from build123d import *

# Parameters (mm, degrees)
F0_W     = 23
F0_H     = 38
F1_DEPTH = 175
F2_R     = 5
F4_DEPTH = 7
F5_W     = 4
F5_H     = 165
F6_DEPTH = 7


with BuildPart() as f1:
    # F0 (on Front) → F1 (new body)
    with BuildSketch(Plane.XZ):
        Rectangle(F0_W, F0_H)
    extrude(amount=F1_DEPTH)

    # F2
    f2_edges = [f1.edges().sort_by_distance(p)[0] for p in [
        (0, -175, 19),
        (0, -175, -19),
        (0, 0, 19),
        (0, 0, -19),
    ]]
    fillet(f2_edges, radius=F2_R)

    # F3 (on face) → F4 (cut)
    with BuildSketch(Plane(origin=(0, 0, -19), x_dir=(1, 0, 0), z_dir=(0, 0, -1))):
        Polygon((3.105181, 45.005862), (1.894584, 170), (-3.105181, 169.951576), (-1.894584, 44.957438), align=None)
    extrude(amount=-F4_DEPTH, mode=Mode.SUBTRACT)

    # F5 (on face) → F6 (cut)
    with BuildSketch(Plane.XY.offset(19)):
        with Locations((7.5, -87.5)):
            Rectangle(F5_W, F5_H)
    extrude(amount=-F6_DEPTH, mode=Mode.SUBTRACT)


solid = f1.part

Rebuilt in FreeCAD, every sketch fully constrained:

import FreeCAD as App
import Part
import Sketcher
Q = App.Units.Quantity


def edges_at(feature, points):
    """Names of the edges that pass closest to the given points."""
    edges = feature.Shape.Edges
    near = lambda p: min(range(len(edges)), key=lambda i: edges[i].distToShape(Part.Vertex(*p))[0])
    return sorted({f"Edge{near(p) + 1}" for p in points})

doc = App.newDocument("Part")
params = doc.addObject("Spreadsheet::Sheet", "Params")
for row, (alias, value) in enumerate([
    ("sketch1_width", "23 mm"),
    ("sketch1_height", "38 mm"),
    ("pad1_length", "175 mm"),
    ("fillet_radius", "5 mm"),
    ("sketch2_length", "125 mm"),
    ("sketch2_length2", "4.999999 mm"),
    ("pocket1_length", "7 mm"),
    ("sketch3_width", "4 mm"),
    ("sketch3_height", "165 mm"),
    ("pocket2_length", "7 mm"),
], start=1):
    params.set(f"A{row}", alias)
    params.set(f"B{row}", "=" + value)
    params.setAlias(f"B{row}", alias)

body = doc.addObject("PartDesign::Body", "Body")

# Sketch on XZ plane
sketch1 = doc.addObject("Sketcher::SketchObject", "Sketch")
body.addObject(sketch1)
sketch1.AttachmentSupport = (doc.XZ_Plane, [""])
sketch1.MapMode = "FlatFace"
sketch1.addGeometry([
    Part.LineSegment(App.Vector(-12, 19, 0), App.Vector(-12, -19, 0)),
    Part.LineSegment(App.Vector(-12, -19, 0), App.Vector(12, -19, 0)),
    Part.LineSegment(App.Vector(12, -19, 0), App.Vector(12, 19, 0)),
    Part.LineSegment(App.Vector(12, 19, 0), App.Vector(-12, 19, 0)),
], False)
sketch1.addConstraint([
    Sketcher.Constraint("Coincident", 0, 2, 1, 1),
    Sketcher.Constraint("Coincident", 1, 2, 2, 1),
    Sketcher.Constraint("Coincident", 2, 2, 3, 1),
    Sketcher.Constraint("Coincident", 3, 2, 0, 1),
    Sketcher.Constraint("Vertical", 0),
    Sketcher.Constraint("Horizontal", 1),
    Sketcher.Constraint("Vertical", 2),
    Sketcher.Constraint("Horizontal", 3),
    Sketcher.Constraint("Symmetric", 0, 2, 2, 2, -1, 1),
    Sketcher.Constraint("DistanceX", 1, 1, 1, 2, Q("23 mm")),
    Sketcher.Constraint("DistanceY", 0, 2, 0, 1, Q("38 mm")),
])
sketch1.setExpression("Constraints[9]", "Params.sketch1_width")
sketch1.setExpression("Constraints[10]", "Params.sketch1_height")
pad1 = doc.addObject("PartDesign::Pad", "Pad")
body.addObject(pad1)
pad1.Profile = sketch1
pad1.setExpression("Length", "Params.pad1_length")
doc.recompute()

fillet = doc.addObject("PartDesign::Fillet", "Fillet")
body.addObject(fillet)
fillet.Base = (pad1, edges_at(pad1, [
    (0, -175, 19),
    (0, -175, -19),
    (0, 0, 19),
    (0, 0, -19),
]))
fillet.setExpression("Radius", "Params.fillet_radius")

# Sketch on XY plane
sketch2 = doc.addObject("Sketcher::SketchObject", "Sketch001")
body.addObject(sketch2)
sketch2.AttachmentSupport = (doc.XY_Plane, [""])
sketch2.MapMode = "FlatFace"
sketch2.AttachmentOffset = App.Placement(App.Vector(0, 0, -19), App.Rotation())
sketch2.addGeometry([
    Part.LineSegment(App.Vector(3.1, -45, 0), App.Vector(1.9, -170, 0)),
    Part.LineSegment(App.Vector(1.9, -170, 0), App.Vector(-3.1, -170, 0)),
    Part.LineSegment(App.Vector(-3.1, -170, 0), App.Vector(-1.9, -45, 0)),
    Part.LineSegment(App.Vector(-1.9, -45, 0), App.Vector(3.1, -45, 0)),
], False)
sketch2.addConstraint([
    Sketcher.Constraint("Coincident", 0, 2, 1, 1),
    Sketcher.Constraint("Coincident", 1, 2, 2, 1),
    Sketcher.Constraint("Coincident", 2, 2, 3, 1),
    Sketcher.Constraint("Coincident", 3, 2, 0, 1),
    Sketcher.Constraint("Perpendicular", 0, 1),
    Sketcher.Constraint("Perpendicular", 1, 2),
    Sketcher.Constraint("Perpendicular", 2, 3),
    Sketcher.Constraint("Distance", 0, Q("125 mm")),
    Sketcher.Constraint("Distance", 1, Q("4.999999 mm")),
    Sketcher.Constraint("DistanceY", 0, 2, -1, 1, Q("170 mm")),
    Sketcher.Constraint("DistanceX", 1, 2, -1, 1, Q("3.105181 mm")),
    Sketcher.Constraint("DistanceY", 2, 2, -1, 1, Q("44.957438 mm")),
])
sketch2.setExpression("Constraints[7]", "Params.sketch2_length")
sketch2.setExpression("Constraints[8]", "Params.sketch2_length2")
pocket1 = doc.addObject("PartDesign::Pocket", "Pocket")
body.addObject(pocket1)
pocket1.Profile = sketch2
pocket1.setExpression("Length", "Params.pocket1_length")
pocket1.Reversed = True

# Sketch on XY plane
sketch3 = doc.addObject("Sketcher::SketchObject", "Sketch002")
body.addObject(sketch3)
sketch3.AttachmentSupport = (doc.XY_Plane, [""])
sketch3.MapMode = "FlatFace"
sketch3.AttachmentOffset = App.Placement(App.Vector(0, 0, 19), App.Rotation())
sketch3.addGeometry([
    Part.LineSegment(App.Vector(5.5, -5, 0), App.Vector(5.5, -170, 0)),
    Part.LineSegment(App.Vector(5.5, -170, 0), App.Vector(9.5, -170, 0)),
    Part.LineSegment(App.Vector(9.5, -170, 0), App.Vector(9.5, -5, 0)),
    Part.LineSegment(App.Vector(9.5, -5, 0), App.Vector(5.5, -5, 0)),
], False)
sketch3.addConstraint([
    Sketcher.Constraint("Coincident", 0, 2, 1, 1),
    Sketcher.Constraint("Coincident", 1, 2, 2, 1),
    Sketcher.Constraint("Coincident", 2, 2, 3, 1),
    Sketcher.Constraint("Coincident", 3, 2, 0, 1),
    Sketcher.Constraint("Vertical", 0),
    Sketcher.Constraint("Horizontal", 1),
    Sketcher.Constraint("Vertical", 2),
    Sketcher.Constraint("Horizontal", 3),
    Sketcher.Constraint("DistanceX", 1, 1, 1, 2, Q("4 mm")),
    Sketcher.Constraint("DistanceY", 0, 2, 0, 1, Q("165 mm")),
    Sketcher.Constraint("DistanceY", 0, 2, -1, 1, Q("170 mm")),
    Sketcher.Constraint("DistanceX", -1, 1, 0, 2, Q("5.5 mm")),
])
sketch3.setExpression("Constraints[8]", "Params.sketch3_width")
sketch3.setExpression("Constraints[9]", "Params.sketch3_height")
pocket2 = doc.addObject("PartDesign::Pocket", "Pocket001")
body.addObject(pocket2)
pocket2.Profile = sketch3
pocket2.setExpression("Length", "Params.pocket2_length")

doc.recompute()
